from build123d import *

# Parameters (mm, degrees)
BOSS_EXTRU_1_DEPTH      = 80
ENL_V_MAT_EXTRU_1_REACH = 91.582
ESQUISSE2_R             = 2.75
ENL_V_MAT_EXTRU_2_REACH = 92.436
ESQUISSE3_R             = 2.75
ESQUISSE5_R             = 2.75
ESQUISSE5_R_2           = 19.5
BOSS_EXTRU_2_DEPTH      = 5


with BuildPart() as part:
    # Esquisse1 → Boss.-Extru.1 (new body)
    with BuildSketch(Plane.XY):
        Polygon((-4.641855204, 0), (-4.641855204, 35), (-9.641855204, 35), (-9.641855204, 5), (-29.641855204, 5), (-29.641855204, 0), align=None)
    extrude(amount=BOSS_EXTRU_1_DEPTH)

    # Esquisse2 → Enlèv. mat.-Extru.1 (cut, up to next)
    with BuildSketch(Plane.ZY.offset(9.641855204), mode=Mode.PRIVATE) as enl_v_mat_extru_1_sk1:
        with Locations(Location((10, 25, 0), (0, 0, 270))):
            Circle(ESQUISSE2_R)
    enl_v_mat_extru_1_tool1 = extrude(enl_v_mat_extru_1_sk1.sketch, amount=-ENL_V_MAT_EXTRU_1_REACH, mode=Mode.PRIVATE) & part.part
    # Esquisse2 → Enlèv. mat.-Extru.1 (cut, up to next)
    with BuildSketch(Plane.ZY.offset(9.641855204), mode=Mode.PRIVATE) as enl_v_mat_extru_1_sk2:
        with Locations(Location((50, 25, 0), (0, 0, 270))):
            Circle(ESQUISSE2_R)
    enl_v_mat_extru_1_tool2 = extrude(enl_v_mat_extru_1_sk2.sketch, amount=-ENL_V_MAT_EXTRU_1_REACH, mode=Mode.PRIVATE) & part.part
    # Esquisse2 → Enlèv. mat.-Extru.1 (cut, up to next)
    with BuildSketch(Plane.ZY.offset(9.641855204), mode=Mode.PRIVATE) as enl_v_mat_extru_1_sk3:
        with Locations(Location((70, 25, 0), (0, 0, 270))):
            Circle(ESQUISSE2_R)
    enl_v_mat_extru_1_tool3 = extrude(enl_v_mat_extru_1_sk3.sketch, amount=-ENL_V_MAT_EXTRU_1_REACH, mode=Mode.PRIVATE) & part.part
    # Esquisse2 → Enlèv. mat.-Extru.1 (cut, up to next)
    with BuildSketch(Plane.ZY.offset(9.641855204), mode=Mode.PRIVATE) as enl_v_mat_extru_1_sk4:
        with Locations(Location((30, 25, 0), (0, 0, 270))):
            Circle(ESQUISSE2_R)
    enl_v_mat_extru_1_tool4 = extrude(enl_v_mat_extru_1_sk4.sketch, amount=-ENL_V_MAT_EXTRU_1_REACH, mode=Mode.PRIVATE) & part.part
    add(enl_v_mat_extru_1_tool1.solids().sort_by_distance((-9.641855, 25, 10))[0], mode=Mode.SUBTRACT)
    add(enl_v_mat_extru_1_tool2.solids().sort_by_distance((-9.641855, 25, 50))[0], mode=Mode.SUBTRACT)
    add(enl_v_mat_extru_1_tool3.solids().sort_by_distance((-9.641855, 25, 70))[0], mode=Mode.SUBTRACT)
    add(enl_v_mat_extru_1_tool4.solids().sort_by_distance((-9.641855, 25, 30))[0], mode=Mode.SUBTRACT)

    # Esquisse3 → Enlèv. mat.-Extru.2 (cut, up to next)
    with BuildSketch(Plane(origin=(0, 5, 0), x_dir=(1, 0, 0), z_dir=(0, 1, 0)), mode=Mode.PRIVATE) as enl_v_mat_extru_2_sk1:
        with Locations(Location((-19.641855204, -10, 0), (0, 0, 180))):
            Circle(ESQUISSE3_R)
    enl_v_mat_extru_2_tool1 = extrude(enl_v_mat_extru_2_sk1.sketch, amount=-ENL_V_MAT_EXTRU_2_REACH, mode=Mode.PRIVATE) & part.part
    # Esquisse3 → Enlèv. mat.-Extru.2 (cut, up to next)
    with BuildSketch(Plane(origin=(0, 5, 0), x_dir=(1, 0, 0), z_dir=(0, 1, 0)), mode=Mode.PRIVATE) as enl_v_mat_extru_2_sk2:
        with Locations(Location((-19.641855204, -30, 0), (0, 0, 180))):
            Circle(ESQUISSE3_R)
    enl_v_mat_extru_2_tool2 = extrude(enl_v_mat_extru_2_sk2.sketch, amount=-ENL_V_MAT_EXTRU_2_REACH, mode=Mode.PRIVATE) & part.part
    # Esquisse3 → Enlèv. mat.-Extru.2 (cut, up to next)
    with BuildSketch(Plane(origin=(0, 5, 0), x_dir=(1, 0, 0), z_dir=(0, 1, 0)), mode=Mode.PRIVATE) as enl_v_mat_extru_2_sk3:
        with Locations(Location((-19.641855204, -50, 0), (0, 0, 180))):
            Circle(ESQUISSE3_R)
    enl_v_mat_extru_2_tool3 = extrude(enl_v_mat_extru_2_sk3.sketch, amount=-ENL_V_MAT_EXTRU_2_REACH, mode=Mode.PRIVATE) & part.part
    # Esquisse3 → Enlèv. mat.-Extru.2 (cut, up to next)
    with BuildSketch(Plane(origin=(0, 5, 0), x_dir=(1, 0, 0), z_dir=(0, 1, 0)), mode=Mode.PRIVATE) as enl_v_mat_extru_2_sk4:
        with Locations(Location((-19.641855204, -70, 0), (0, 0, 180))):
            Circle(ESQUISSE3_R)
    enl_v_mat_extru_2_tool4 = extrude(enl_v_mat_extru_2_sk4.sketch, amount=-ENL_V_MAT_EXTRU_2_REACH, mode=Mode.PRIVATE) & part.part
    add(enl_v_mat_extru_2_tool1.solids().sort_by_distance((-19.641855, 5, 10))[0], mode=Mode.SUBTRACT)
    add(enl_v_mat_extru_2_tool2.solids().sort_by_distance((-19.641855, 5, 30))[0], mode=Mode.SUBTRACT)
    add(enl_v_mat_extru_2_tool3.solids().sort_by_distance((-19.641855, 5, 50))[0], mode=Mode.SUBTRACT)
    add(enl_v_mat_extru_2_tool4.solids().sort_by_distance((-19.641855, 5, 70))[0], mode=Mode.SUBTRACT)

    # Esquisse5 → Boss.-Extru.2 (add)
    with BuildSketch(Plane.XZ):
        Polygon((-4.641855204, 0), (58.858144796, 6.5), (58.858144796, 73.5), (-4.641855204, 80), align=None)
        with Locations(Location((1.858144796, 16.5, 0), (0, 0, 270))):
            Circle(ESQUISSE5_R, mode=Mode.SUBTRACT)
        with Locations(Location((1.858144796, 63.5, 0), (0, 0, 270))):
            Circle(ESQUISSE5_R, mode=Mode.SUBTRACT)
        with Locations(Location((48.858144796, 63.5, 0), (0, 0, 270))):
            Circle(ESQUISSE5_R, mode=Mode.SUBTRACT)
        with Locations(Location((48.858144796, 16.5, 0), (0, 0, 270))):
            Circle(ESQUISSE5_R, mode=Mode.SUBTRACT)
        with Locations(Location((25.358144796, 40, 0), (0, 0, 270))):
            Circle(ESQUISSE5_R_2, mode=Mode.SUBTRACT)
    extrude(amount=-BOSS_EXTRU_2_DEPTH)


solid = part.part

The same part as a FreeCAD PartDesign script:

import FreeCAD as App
import Part
import Sketcher

V = App.Vector


def add_polygon(sketch, points):
    """Adds a closed chain of lines whose ends are joined by coincident constraints."""
    first, n = sketch.GeometryCount, len(points)
    for a, b in zip(points, points[1:] + points[:1]):
        sketch.addGeometry(Part.LineSegment(App.Vector(*a, 0), App.Vector(*b, 0)), False)
    for i in range(n):
        sketch.addConstraint(Sketcher.Constraint("Coincident", first + i, 2, first + (i + 1) % n, 1))

doc = App.newDocument("Part")
body = doc.addObject("PartDesign::Body", "Body")

# Sketch on XY plane
sketch1 = body.newObject("Sketcher::SketchObject", "Sketch")
sketch1.AttachmentSupport = (doc.getObject("XY_Plane"), [""])
sketch1.MapMode = "FlatFace"
add_polygon(sketch1, [(-5, 0), (-5, 35), (-10, 35), (-10, 5), (-30, 5), (-30, 0)])  # lines 0-5
sketch1.addConstraint(Sketcher.Constraint("Vertical", 0))
sketch1.addConstraint(Sketcher.Constraint("Horizontal", 1))
sketch1.addConstraint(Sketcher.Constraint("Vertical", 2))
sketch1.addConstraint(Sketcher.Constraint("Horizontal", 3))
sketch1.addConstraint(Sketcher.Constraint("Vertical", 4))
sketch1.addConstraint(Sketcher.Constraint("Horizontal", 5))
sketch1.addConstraint(Sketcher.Constraint("PointOnObject", 4, 2, -1))
sketch1.addConstraint(Sketcher.Constraint("Equal", 1, 4))
sketch1.addConstraint(Sketcher.Constraint("DistanceX", 1, 2, 1, 1, 5.0))
sketch1.addConstraint(Sketcher.Constraint("DistanceX", 3, 2, 3, 1, 20.0))
sketch1.addConstraint(Sketcher.Constraint("DistanceY", 0, 1, 0, 2, 35.0))
sketch1.addConstraint(Sketcher.Constraint("DistanceX", 0, 2, -1, 1, 4.641855))
pad1 = body.newObject("PartDesign::Pad", "Pad")
pad1.Profile = sketch1
pad1.Length = 80

# Sketch on YZ plane
sketch2 = body.newObject("Sketcher::SketchObject", "Sketch001")
sketch2.AttachmentSupport = (doc.getObject("YZ_Plane"), [""])
sketch2.MapMode = "FlatFace"
sketch2.AttachmentOffset = App.Placement(V(0, 0, -9.641855), App.Rotation())
sketch2.addGeometry(Part.Circle(V(25, 10, 0), V(0, 0, 1), 2.8), False)
sketch2.addConstraint(Sketcher.Constraint("Diameter", 0, 5.5))
sketch2.addConstraint(Sketcher.Constraint("DistanceX", -1, 1, 0, 3, 25.0))
sketch2.addConstraint(Sketcher.Constraint("DistanceY", -1, 1, 0, 3, 10.0))
pocket1 = body.newObject("PartDesign::Pocket", "Pocket")
pocket1.Profile = sketch2
pocket1.Type = "UpToFirst"
pocket1.Reversed = True

# Sketch on YZ plane
sketch3 = body.newObject("Sketcher::SketchObject", "Sketch002")
sketch3.AttachmentSupport = (doc.getObject("YZ_Plane"), [""])
sketch3.MapMode = "FlatFace"
sketch3.AttachmentOffset = App.Placement(V(0, 0, -9.641855), App.Rotation())
sketch3.addGeometry(Part.Circle(V(25, 50, 0), V(0, 0, 1), 2.8), False)
sketch3.addConstraint(Sketcher.Constraint("Diameter", 0, 5.5))
sketch3.addConstraint(Sketcher.Constraint("DistanceX", -1, 1, 0, 3, 25.0))
sketch3.addConstraint(Sketcher.Constraint("DistanceY", -1, 1, 0, 3, 50.0))
pocket2 = body.newObject("PartDesign::Pocket", "Pocket001")
pocket2.Profile = sketch3
pocket2.Type = "UpToFirst"
pocket2.Reversed = True

# Sketch on YZ plane
sketch4 = body.newObject("Sketcher::SketchObject", "Sketch003")
sketch4.AttachmentSupport = (doc.getObject("YZ_Plane"), [""])
sketch4.MapMode = "FlatFace"
sketch4.AttachmentOffset = App.Placement(V(0, 0, -9.641855), App.Rotation())
sketch4.addGeometry(Part.Circle(V(25, 70, 0), V(0, 0, 1), 2.8), False)
sketch4.addConstraint(Sketcher.Constraint("Diameter", 0, 5.5))
sketch4.addConstraint(Sketcher.Constraint("DistanceX", -1, 1, 0, 3, 25.0))
sketch4.addConstraint(Sketcher.Constraint("DistanceY", -1, 1, 0, 3, 70.0))
pocket3 = body.newObject("PartDesign::Pocket", "Pocket002")
pocket3.Profile = sketch4
pocket3.Type = "UpToFirst"
pocket3.Reversed = True

# Sketch on YZ plane
sketch5 = body.newObject("Sketcher::SketchObject", "Sketch004")
sketch5.AttachmentSupport = (doc.getObject("YZ_Plane"), [""])
sketch5.MapMode = "FlatFace"
sketch5.AttachmentOffset = App.Placement(V(0, 0, -9.641855), App.Rotation())
sketch5.addGeometry(Part.Circle(V(25, 30, 0), V(0, 0, 1), 2.8), False)
sketch5.addConstraint(Sketcher.Constraint("Diameter", 0, 5.5))
sketch5.addConstraint(Sketcher.Constraint("DistanceX", -1, 1, 0, 3, 25.0))
sketch5.addConstraint(Sketcher.Constraint("DistanceY", -1, 1, 0, 3, 30.0))
pocket4 = body.newObject("PartDesign::Pocket", "Pocket003")
pocket4.Profile = sketch5
pocket4.Type = "UpToFirst"
pocket4.Reversed = True

# Sketch on XZ plane
sketch6 = body.newObject("Sketcher::SketchObject", "Sketch005")
sketch6.AttachmentSupport = (doc.getObject("XZ_Plane"), [""])
sketch6.MapMode = "FlatFace"
sketch6.AttachmentOffset = App.Placement(V(0, 0, -5), App.Rotation())
sketch6.addGeometry(Part.Circle(V(-19.6, 10, 0), V(0, 0, 1), 2.8), False)
sketch6.addConstraint(Sketcher.Constraint("Diameter", 0, 5.5))
sketch6.addConstraint(Sketcher.Constraint("DistanceY", -1, 1, 0, 3, 10.0))
sketch6.addConstraint(Sketcher.Constraint("DistanceX", 0, 3, -1, 1, 19.641855))
pocket5 = body.newObject("PartDesign::Pocket", "Pocket004")
pocket5.Profile = sketch6
pocket5.Type = "UpToFirst"
pocket5.Reversed = True

# Sketch on XZ plane
sketch7 = body.newObject("Sketcher::SketchObject", "Sketch006")
sketch7.AttachmentSupport = (doc.getObject("XZ_Plane"), [""])
sketch7.MapMode = "FlatFace"
sketch7.AttachmentOffset = App.Placement(V(0, 0, -5), App.Rotation())
sketch7.addGeometry(Part.Circle(V(-19.6, 30, 0), V(0, 0, 1), 2.8), False)
sketch7.addConstraint(Sketcher.Constraint("Diameter", 0, 5.5))
sketch7.addConstraint(Sketcher.Constraint("DistanceY", -1, 1, 0, 3, 30.0))
sketch7.addConstraint(Sketcher.Constraint("DistanceX", 0, 3, -1, 1, 19.641855))
pocket6 = body.newObject("PartDesign::Pocket", "Pocket005")
pocket6.Profile = sketch7
pocket6.Type = "UpToFirst"
pocket6.Reversed = True

# Sketch on XZ plane
sketch8 = body.newObject("Sketcher::SketchObject", "Sketch007")
sketch8.AttachmentSupport = (doc.getObject("XZ_Plane"), [""])
sketch8.MapMode = "FlatFace"
sketch8.AttachmentOffset = App.Placement(V(0, 0, -5), App.Rotation())
sketch8.addGeometry(Part.Circle(V(-19.6, 50, 0), V(0, 0, 1), 2.8), False)
sketch8.addConstraint(Sketcher.Constraint("Diameter", 0, 5.5))
sketch8.addConstraint(Sketcher.Constraint("DistanceY", -1, 1, 0, 3, 50.0))
sketch8.addConstraint(Sketcher.Constraint("DistanceX", 0, 3, -1, 1, 19.641855))
pocket7 = body.newObject("PartDesign::Pocket", "Pocket006")
pocket7.Profile = sketch8
pocket7.Type = "UpToFirst"
pocket7.Reversed = True

# Sketch on XZ plane
sketch9 = body.newObject("Sketcher::SketchObject", "Sketch008")
sketch9.AttachmentSupport = (doc.getObject("XZ_Plane"), [""])
sketch9.MapMode = "FlatFace"
sketch9.AttachmentOffset = App.Placement(V(0, 0, -5), App.Rotation())
sketch9.addGeometry(Part.Circle(V(-19.6, 70, 0), V(0, 0, 1), 2.8), False)
sketch9.addConstraint(Sketcher.Constraint("Diameter", 0, 5.5))
sketch9.addConstraint(Sketcher.Constraint("DistanceY", -1, 1, 0, 3, 70.0))
sketch9.addConstraint(Sketcher.Constraint("DistanceX", 0, 3, -1, 1, 19.641855))
pocket8 = body.newObject("PartDesign::Pocket", "Pocket007")
pocket8.Profile = sketch9
pocket8.Type = "UpToFirst"
pocket8.Reversed = True

# Sketch on XZ plane
sketch10 = body.newObject("Sketcher::SketchObject", "Sketch009")
sketch10.AttachmentSupport = (doc.getObject("XZ_Plane"), [""])
sketch10.MapMode = "FlatFace"
add_polygon(sketch10, [(-4.6, 0), (58.9, 6.5), (58.9, 73.5), (-4.6, 80)])  # lines 0-3
sketch10.addGeometry(Part.Circle(V(1.9, 16.5, 0), V(0, 0, 1), 2.8), False)  # 4
sketch10.addGeometry(Part.Circle(V(48.9, 16.5, 0), V(0, 0, 1), 2.8), False)  # 5
sketch10.addGeometry(Part.Circle(V(1.9, 63.5, 0), V(0, 0, 1), 2.8), False)  # 6
sketch10.addGeometry(Part.Circle(V(25.4, 40, 0), V(0, 0, 1), 19.5), False)  # 7
sketch10.addGeometry(Part.Circle(V(48.9, 63.5, 0), V(0, 0, 1), 2.8), False)  # 8
sketch10.addConstraint(Sketcher.Constraint("Vertical", 1))
sketch10.addConstraint(Sketcher.Constraint("Vertical", 3))
sketch10.addConstraint(Sketcher.Constraint("Equal", 4, 5))
sketch10.addConstraint(Sketcher.Constraint("Equal", 5, 6))
sketch10.addConstraint(Sketcher.Constraint("Equal", 6, 8))
sketch10.addConstraint(Sketcher.Constraint("PointOnObject", 3, 2, -1))
sketch10.addConstraint(Sketcher.Constraint("Horizontal", 4, 3, 5, 3))
sketch10.addConstraint(Sketcher.Constraint("Horizontal", 6, 3, 8, 3))
sketch10.addConstraint(Sketcher.Constraint("Vertical", 4, 3, 6, 3))
sketch10.addConstraint(Sketcher.Constraint("Vertical", 5, 3, 8, 3))
sketch10.addConstraint(Sketcher.Constraint("Equal", 0, 2))
sketch10.addConstraint(Sketcher.Constraint("Diameter", 7, 39.0))
sketch10.addConstraint(Sketcher.Constraint("Diameter", 4, 5.5))
sketch10.addConstraint(Sketcher.Constraint("DistanceY", 1, 1, 1, 2, 67.0))
sketch10.addConstraint(Sketcher.Constraint("DistanceY", 3, 2, 3, 1, 80.0))
sketch10.addConstraint(Sketcher.Constraint("DistanceY", -1, 1, 7, 3, 40.0))
sketch10.addConstraint(Sketcher.Constraint("DistanceX", 4, 3, 5, 3, 47.0))
sketch10.addConstraint(Sketcher.Constraint("DistanceY", 4, 3, 6, 3, 47.0))
sketch10.addConstraint(Sketcher.Constraint("DistanceX", 5, 3, 0, 2, 10.0))
sketch10.addConstraint(Sketcher.Constraint("DistanceY", 0, 2, 5, 3, 10.0))
sketch10.addConstraint(Sketcher.Constraint("DistanceX", 2, 2, 7, 3, 30.0))
sketch10.addConstraint(Sketcher.Constraint("DistanceX", 4, 3, 7, 3, 23.5))
sketch10.addConstraint(Sketcher.Constraint("DistanceX", -1, 1, 4, 3, 1.858145))
pad2 = body.newObject("PartDesign::Pad", "Pad001")
pad2.Profile = sketch10
pad2.Length = 5
pad2.Reversed = True

doc.recompute()
